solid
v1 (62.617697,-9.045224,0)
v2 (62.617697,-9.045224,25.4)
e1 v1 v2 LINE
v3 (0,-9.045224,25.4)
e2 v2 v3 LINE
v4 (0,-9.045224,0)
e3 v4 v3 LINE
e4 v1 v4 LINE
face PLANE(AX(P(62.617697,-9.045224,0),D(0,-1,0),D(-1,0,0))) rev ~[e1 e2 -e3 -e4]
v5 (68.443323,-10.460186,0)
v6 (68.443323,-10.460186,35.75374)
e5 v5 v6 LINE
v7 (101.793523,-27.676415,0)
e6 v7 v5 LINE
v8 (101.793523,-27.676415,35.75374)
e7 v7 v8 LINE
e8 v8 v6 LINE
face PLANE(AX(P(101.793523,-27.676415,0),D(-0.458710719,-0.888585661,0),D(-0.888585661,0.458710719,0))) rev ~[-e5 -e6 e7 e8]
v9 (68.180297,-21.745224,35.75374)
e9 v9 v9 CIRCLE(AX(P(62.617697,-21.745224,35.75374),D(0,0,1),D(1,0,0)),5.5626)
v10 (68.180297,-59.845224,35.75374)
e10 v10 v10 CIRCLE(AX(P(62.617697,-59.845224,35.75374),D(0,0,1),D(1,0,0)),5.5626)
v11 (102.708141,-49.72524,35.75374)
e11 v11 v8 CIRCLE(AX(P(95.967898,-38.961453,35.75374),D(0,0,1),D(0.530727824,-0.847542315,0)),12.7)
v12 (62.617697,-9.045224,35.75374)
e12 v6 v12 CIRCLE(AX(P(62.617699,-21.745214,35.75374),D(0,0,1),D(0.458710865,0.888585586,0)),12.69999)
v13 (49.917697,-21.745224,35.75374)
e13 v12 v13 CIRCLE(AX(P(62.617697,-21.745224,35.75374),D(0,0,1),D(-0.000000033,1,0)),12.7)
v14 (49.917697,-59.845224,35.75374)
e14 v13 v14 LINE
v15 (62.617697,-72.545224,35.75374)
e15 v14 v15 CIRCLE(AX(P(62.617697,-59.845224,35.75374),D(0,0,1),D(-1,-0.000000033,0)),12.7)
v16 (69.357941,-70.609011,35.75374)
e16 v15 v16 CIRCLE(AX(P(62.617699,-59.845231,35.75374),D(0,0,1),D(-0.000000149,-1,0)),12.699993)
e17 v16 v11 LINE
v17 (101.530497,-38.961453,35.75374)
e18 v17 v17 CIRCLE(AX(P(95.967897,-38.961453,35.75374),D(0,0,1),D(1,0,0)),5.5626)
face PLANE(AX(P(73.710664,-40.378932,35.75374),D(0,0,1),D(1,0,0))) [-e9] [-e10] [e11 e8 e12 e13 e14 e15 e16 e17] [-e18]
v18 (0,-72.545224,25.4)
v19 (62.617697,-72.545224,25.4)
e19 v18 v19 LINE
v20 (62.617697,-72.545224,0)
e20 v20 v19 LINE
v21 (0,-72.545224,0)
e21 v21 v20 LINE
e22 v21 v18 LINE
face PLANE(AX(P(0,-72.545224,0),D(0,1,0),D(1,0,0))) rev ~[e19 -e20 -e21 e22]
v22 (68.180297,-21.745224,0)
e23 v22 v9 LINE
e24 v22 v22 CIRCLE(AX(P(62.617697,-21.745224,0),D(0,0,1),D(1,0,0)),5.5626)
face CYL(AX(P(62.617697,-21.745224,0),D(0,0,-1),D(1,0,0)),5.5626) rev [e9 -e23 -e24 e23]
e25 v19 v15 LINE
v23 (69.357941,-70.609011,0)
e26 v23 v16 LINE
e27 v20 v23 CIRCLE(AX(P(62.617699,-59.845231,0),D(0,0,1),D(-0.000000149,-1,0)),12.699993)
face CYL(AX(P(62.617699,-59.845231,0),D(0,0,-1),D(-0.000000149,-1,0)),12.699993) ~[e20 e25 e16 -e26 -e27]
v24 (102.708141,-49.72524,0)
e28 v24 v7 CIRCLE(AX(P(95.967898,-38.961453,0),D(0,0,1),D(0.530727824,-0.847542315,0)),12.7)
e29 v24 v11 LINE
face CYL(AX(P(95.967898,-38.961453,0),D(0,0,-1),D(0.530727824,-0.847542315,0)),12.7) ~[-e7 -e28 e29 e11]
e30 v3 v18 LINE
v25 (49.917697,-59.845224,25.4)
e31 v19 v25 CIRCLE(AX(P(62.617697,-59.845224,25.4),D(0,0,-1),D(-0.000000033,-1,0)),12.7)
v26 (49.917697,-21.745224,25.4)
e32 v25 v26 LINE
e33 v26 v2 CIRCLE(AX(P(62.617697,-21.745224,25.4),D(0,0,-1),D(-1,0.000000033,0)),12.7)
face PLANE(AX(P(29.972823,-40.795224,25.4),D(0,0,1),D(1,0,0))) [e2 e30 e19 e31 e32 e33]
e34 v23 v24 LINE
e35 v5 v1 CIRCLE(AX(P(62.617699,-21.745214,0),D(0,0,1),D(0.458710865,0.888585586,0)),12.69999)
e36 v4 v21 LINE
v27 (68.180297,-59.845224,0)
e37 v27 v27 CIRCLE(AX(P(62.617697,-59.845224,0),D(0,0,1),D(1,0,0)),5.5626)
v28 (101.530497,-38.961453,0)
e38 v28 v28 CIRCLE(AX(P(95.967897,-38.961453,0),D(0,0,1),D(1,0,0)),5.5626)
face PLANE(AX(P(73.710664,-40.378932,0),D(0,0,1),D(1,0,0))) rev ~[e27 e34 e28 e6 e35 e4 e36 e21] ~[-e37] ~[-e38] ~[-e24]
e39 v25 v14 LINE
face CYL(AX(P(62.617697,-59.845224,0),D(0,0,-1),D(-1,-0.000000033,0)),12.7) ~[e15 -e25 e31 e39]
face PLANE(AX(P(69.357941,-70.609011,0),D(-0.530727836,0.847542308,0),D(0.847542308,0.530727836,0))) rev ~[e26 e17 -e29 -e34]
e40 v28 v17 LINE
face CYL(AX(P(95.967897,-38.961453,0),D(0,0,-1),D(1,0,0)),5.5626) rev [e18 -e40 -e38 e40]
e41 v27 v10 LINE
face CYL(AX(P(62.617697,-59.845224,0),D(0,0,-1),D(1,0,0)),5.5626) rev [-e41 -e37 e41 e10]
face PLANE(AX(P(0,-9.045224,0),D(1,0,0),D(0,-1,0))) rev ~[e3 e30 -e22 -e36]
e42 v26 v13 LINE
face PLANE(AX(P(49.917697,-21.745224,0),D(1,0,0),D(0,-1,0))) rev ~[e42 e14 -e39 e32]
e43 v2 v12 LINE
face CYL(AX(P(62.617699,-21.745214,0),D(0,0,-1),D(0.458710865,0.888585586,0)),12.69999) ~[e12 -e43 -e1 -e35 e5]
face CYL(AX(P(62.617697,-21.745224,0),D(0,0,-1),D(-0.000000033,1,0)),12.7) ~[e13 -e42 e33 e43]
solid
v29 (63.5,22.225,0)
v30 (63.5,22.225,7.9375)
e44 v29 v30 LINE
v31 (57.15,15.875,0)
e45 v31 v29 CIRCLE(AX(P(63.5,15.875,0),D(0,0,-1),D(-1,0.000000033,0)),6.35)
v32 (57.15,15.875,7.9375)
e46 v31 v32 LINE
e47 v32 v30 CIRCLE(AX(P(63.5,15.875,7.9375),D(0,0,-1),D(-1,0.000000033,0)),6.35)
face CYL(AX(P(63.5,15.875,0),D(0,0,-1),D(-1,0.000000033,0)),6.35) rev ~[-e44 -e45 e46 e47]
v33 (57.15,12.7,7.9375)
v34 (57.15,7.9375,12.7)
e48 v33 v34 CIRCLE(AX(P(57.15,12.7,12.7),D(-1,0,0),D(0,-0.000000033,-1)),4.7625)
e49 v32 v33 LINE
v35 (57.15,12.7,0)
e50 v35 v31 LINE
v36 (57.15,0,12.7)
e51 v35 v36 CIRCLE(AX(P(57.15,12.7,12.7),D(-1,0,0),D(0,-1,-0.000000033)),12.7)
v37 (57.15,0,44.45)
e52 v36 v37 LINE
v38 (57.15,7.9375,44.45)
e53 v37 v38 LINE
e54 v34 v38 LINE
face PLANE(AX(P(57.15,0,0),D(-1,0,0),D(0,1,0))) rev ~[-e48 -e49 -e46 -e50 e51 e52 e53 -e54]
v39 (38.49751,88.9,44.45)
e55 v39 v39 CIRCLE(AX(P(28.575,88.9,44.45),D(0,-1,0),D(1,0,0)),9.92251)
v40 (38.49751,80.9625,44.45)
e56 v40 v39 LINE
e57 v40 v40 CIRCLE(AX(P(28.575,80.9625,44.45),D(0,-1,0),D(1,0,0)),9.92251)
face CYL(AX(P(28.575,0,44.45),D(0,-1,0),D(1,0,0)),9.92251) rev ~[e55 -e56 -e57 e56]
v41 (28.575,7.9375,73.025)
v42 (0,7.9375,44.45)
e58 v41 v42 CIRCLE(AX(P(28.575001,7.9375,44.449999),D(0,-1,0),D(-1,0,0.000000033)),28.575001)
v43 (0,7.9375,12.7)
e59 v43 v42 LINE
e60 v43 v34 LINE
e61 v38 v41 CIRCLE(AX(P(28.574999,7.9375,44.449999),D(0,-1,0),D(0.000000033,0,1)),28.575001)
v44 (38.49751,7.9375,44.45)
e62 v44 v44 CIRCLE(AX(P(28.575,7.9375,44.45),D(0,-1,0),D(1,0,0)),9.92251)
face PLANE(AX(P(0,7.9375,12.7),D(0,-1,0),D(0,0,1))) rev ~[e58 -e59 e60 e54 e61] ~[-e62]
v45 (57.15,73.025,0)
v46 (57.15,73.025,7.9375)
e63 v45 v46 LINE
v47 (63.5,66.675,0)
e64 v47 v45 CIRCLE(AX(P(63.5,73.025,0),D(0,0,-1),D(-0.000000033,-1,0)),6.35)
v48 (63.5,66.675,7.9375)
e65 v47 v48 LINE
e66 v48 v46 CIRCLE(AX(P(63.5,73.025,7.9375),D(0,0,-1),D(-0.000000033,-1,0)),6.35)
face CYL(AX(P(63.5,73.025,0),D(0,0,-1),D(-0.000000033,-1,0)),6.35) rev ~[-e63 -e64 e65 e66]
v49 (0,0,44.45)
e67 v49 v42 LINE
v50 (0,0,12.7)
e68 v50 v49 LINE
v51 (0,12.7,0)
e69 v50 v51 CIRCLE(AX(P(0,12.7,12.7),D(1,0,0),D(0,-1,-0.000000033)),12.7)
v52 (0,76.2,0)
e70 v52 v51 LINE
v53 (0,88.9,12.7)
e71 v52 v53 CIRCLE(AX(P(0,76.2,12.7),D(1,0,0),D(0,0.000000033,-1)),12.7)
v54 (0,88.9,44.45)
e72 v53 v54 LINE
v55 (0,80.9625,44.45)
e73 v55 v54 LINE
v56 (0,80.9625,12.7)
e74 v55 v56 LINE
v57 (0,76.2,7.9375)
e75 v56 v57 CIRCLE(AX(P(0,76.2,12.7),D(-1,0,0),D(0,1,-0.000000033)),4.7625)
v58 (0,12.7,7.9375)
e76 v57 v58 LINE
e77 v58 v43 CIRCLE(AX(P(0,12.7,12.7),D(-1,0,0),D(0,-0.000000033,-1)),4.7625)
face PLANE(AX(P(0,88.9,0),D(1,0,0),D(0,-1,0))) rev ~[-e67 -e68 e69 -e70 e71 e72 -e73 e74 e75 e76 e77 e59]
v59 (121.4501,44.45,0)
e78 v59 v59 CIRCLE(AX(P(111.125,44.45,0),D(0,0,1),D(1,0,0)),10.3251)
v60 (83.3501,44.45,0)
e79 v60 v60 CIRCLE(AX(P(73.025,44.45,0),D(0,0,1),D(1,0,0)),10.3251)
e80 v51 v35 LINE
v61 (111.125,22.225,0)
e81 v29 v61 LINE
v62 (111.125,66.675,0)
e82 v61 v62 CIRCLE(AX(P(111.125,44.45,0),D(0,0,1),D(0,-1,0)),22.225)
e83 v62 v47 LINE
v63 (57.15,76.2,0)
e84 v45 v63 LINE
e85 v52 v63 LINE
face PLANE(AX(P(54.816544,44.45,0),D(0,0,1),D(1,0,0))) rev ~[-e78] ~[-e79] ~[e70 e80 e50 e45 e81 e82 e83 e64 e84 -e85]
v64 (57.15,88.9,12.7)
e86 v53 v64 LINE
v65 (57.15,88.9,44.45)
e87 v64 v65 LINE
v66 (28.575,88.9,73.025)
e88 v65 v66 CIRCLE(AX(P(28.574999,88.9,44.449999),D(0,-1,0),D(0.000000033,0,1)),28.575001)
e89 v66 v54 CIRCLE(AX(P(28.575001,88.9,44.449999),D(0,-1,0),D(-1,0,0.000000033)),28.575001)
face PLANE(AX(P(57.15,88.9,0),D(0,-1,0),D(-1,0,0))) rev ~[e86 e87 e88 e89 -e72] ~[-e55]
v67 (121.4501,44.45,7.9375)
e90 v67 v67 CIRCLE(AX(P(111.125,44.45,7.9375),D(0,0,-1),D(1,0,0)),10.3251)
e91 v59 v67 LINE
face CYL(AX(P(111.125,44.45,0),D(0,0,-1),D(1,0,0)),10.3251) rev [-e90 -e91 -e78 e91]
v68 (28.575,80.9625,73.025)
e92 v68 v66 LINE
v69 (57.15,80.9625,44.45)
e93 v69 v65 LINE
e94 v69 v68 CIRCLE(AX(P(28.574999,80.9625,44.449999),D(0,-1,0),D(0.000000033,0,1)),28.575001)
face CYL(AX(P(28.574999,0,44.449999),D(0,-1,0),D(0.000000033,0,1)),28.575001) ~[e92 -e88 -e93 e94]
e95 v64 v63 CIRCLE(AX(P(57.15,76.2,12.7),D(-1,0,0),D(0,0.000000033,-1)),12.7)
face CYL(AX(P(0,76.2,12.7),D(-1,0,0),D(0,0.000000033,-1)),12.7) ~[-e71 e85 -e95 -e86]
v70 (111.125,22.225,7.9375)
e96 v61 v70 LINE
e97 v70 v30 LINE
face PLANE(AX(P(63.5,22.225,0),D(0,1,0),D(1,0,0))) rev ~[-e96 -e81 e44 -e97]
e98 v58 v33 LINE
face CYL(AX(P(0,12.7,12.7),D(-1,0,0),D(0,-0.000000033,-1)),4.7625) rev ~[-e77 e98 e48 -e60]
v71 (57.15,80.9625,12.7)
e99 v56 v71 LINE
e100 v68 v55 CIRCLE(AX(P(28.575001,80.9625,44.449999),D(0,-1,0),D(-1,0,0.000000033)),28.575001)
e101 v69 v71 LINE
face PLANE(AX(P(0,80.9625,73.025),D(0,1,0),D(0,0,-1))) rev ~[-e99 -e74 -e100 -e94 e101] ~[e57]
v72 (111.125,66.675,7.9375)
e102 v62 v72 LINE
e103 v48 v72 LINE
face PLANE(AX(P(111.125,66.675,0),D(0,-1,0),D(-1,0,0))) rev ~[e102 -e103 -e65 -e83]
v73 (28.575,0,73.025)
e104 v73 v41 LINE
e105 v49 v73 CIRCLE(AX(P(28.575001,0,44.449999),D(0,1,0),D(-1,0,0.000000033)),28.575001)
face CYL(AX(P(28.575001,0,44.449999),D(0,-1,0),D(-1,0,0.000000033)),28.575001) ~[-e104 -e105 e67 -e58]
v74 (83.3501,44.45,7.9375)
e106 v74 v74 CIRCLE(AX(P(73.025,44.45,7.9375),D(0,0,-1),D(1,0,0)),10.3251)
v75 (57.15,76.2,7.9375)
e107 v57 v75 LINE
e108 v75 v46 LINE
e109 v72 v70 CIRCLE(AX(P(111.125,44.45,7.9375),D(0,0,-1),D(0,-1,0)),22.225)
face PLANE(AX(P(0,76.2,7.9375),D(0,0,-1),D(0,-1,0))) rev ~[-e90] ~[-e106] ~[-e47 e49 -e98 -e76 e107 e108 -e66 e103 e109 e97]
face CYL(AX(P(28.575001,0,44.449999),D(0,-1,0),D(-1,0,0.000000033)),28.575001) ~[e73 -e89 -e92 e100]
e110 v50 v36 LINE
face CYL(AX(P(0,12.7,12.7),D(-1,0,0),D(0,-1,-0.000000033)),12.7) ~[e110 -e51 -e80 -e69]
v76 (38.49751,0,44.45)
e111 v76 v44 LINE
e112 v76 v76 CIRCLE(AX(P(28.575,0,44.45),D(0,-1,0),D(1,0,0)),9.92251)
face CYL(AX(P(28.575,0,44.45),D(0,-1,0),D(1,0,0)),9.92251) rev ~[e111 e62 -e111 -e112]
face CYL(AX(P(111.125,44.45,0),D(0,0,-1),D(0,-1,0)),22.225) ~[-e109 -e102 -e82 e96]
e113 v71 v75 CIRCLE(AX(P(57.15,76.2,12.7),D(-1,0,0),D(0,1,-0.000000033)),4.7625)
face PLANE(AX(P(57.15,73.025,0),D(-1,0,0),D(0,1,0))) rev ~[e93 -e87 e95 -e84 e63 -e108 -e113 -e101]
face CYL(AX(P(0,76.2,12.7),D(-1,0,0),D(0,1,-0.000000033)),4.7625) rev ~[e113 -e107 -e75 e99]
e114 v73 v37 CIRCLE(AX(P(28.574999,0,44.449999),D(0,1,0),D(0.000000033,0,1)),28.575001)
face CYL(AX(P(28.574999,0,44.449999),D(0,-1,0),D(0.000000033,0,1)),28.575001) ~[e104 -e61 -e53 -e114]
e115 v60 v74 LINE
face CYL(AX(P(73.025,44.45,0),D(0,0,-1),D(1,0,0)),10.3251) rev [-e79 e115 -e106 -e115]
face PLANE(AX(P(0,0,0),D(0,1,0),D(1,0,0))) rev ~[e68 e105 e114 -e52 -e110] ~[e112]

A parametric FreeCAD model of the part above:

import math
import FreeCAD as App
import Part
import Sketcher
from FreeCAD import Vector
Q = App.Units.Quantity

doc = App.newDocument("Part")
body = doc.addObject("PartDesign::Body", "Body")

sketch1 = body.newObject("Sketcher::SketchObject", "Sketch")
sketch1.AttachmentSupport = (doc.getObject("XY_Plane"), [""])
sketch1.MapMode = "FlatFace"
sketch1.addGeometry([
    Part.LineSegment(Vector(0, 89, 0), Vector(0, 0, 0)),
    Part.LineSegment(Vector(0, 0, 0), Vector(57, 0, 0)),
    Part.LineSegment(Vector(57, 0, 0), Vector(57, 16, 0)),
    Part.ArcOfCircle(Part.Circle(Vector(64, 16, 0), Vector(0, 0, 1), 6), math.radians(90), math.radians(180)),
    Part.LineSegment(Vector(64, 22, 0), Vector(111, 22, 0)),
    Part.ArcOfCircle(Part.Circle(Vector(111, 44, 0), Vector(0, 0, 1), 22), math.radians(-90), math.radians(90)),
    Part.LineSegment(Vector(111, 67, 0), Vector(64, 67, 0)),
    Part.ArcOfCircle(Part.Circle(Vector(64, 73, 0), Vector(0, 0, 1), 6), math.radians(-180), math.radians(-90)),
    Part.LineSegment(Vector(57, 73, 0), Vector(57, 89, 0)),
    Part.LineSegment(Vector(57, 89, 0), Vector(0, 89, 0)),
    Part.Circle(Vector(73, 44, 0), Vector(0, 0, 1), 10),
    Part.Circle(Vector(111, 44, 0), Vector(0, 0, 1), 10),
], False)
sketch1.addConstraint([
    Sketcher.Constraint("Coincident", 0, 2, 1, 1),
    Sketcher.Constraint("Coincident", 1, 2, 2, 1),
    Sketcher.Constraint("Tangent", 2, 2, 3, 2),
    Sketcher.Constraint("Tangent", 3, 1, 4, 1),
    Sketcher.Constraint("Tangent", 4, 2, 5, 1),
    Sketcher.Constraint("Tangent", 5, 2, 6, 1),
    Sketcher.Constraint("Tangent", 6, 2, 7, 2),
    Sketcher.Constraint("Tangent", 7, 1, 8, 1),
    Sketcher.Constraint("Coincident", 8, 2, 9, 1),
    Sketcher.Constraint("Coincident", 9, 2, 0, 1),
    Sketcher.Constraint("Vertical", 0),
    Sketcher.Constraint("Horizontal", 1),
    Sketcher.Constraint("Vertical", 2),
    Sketcher.Constraint("Horizontal", 4),
    Sketcher.Constraint("Horizontal", 6),
    Sketcher.Constraint("Vertical", 8),
    Sketcher.Constraint("Horizontal", 9),
    Sketcher.Constraint("Coincident", 0, 2, -1, 1),
    Sketcher.Constraint("Coincident", 11, 3, 5, 3),
    Sketcher.Constraint("Equal", 3, 7),
    Sketcher.Constraint("Equal", 10, 11),
    Sketcher.Constraint("Horizontal", 5, 3, 10, 3),
    Sketcher.Constraint("Vertical", 3, 3, 7, 3),
    Sketcher.Constraint("Equal", 2, 8),
    Sketcher.Constraint("Radius", 3, Q("0.25 in")),
    Sketcher.Constraint("Diameter", 10, Q("0.813 in")),
    Sketcher.Constraint("DistanceY", 0, 2, 0, 1, Q("3.5 in")),
    Sketcher.Constraint("Radius", 5, Q("0.875 in")),
    Sketcher.Constraint("DistanceX", 1, 1, 1, 2, Q("2.25 in")),
    Sketcher.Constraint("DistanceX", 10, 3, 5, 3, Q("1.5 in")),
    Sketcher.Constraint("DistanceX", 4, 1, 4, 2, Q("1.875 in")),
])
pad1 = body.newObject("PartDesign::Pad", "Pad")
pad1.Profile = sketch1
pad1.Length = Q("2.875 in")

sketch2 = body.newObject("Sketcher::SketchObject", "Sketch001")
sketch2.AttachmentSupport = (doc.getObject("YZ_Plane"), [""])
sketch2.MapMode = "FlatFace"
sketch2.addGeometry([
    Part.LineSegment(Vector(7.9, 73, 0), Vector(81, 73, 0)),
    Part.LineSegment(Vector(81, 73, 0), Vector(81, 12.7, 0)),
    Part.ArcOfCircle(Part.Circle(Vector(76.2, 12.7, 0), Vector(0, 0, 1), 4.8), math.radians(-90), math.radians(0)),
    Part.LineSegment(Vector(76.2, 7.9, 0), Vector(12.7, 7.9, 0)),
    Part.ArcOfCircle(Part.Circle(Vector(12.7, 12.7, 0), Vector(0, 0, 1), 4.8), math.radians(-180), math.radians(-90)),
    Part.LineSegment(Vector(7.9, 12.7, 0), Vector(7.9, 73, 0)),
    Part.ArcOfCircle(Part.Circle(Vector(76.2, 12.7, 0), Vector(0, 0, 1), 12.7), math.radians(-90), math.radians(0)),
    Part.LineSegment(Vector(88.9, 12.7, 0), Vector(88.9, 0, 0)),
    Part.LineSegment(Vector(88.9, 0, 0), Vector(76.2, 0, 0)),
    Part.ArcOfCircle(Part.Circle(Vector(12.7, 12.7, 0), Vector(0, 0, 1), 12.7), math.radians(-180), math.radians(-90)),
    Part.LineSegment(Vector(12.7, 0, 0), Vector(0, 0, 0)),
    Part.LineSegment(Vector(0, 0, 0), Vector(0, 12.7, 0)),
], False)
sketch2.addConstraint([
    Sketcher.Constraint("Coincident", 0, 2, 1, 1),
    Sketcher.Constraint("Tangent", 1, 2, 2, 2),
    Sketcher.Constraint("Tangent", 2, 1, 3, 1),
    Sketcher.Constraint("Tangent", 3, 2, 4, 2),
    Sketcher.Constraint("Tangent", 4, 1, 5, 1),
    Sketcher.Constraint("Coincident", 5, 2, 0, 1),
    Sketcher.Constraint("Tangent", 6, 2, 7, 1),
    Sketcher.Constraint("Coincident", 7, 2, 8, 1),
    Sketcher.Constraint("Tangent", 8, 2, 6, 1),
    Sketcher.Constraint("Tangent", 9, 2, 10, 1),
    Sketcher.Constraint("Coincident", 10, 2, 11, 1),
    Sketcher.Constraint("Tangent", 11, 2, 9, 1),
    Sketcher.Constraint("Horizontal", 0),
    Sketcher.Constraint("Vertical", 1),
    Sketcher.Constraint("Horizontal", 3),
    Sketcher.Constraint("Vertical", 5),
    Sketcher.Constraint("Vertical", 7),
    Sketcher.Constraint("Horizontal", 8),
    Sketcher.Constraint("Horizontal", 10),
    Sketcher.Constraint("Vertical", 11),
    Sketcher.Constraint("Coincident", 10, 2, -1, 1),
    Sketcher.Constraint("Coincident", 6, 3, 2, 3),
    Sketcher.Constraint("Coincident", 9, 3, 4, 3),
    Sketcher.Constraint("Equal", 2, 4),
    Sketcher.Constraint("Equal", 6, 9),
    Sketcher.Constraint("Radius", 6, Q("0.5 in")),
    Sketcher.Constraint("DistanceX", 3, 2, 3, 1, Q("2.5 in")),
    Sketcher.Constraint("Radius", 2, Q("0.1875 in")),
    Sketcher.Constraint("DistanceY", 1, 2, 1, 1, Q("2.375 in")),
])
pocket1 = body.newObject("PartDesign::Pocket", "Pocket")
pocket1.Profile = sketch2
pocket1.Type = "ThroughAll"
pocket1.Reversed = True

sketch3 = body.newObject("Sketcher::SketchObject", "Sketch002")
sketch3.AttachmentSupport = (doc.getObject("XZ_Plane"), [""])
sketch3.MapMode = "FlatFace"
sketch3.addGeometry([
    Part.Circle(Vector(29, 44, 0), Vector(0, 0, 1), 10),
    Part.LineSegment(Vector(57, 73, 0), Vector(29, 73, 0)),
    Part.ArcOfCircle(Part.Circle(Vector(29, 44, 0), Vector(0, 0, 1), 29), math.radians(0), math.radians(90)),
    Part.LineSegment(Vector(57, 44, 0), Vector(57, 73, 0)),
    Part.LineSegment(Vector(0, 73, 0), Vector(0, 44, 0)),
    Part.ArcOfCircle(Part.Circle(Vector(29, 44, 0), Vector(0, 0, 1), 29), math.radians(90), math.radians(180)),
    Part.LineSegment(Vector(29, 73, 0), Vector(0, 73, 0)),
], False)
sketch3.addConstraint([
    Sketcher.Constraint("Tangent", 1, 2, 2, 2),
    Sketcher.Constraint("Tangent", 2, 1, 3, 1),
    Sketcher.Constraint("Coincident", 3, 2, 1, 1),
    Sketcher.Constraint("Tangent", 4, 2, 5, 2),
    Sketcher.Constraint("Tangent", 5, 1, 6, 1),
    Sketcher.Constraint("Coincident", 6, 2, 4, 1),
    Sketcher.Constraint("Horizontal", 1),
    Sketcher.Constraint("Vertical", 3),
    Sketcher.Constraint("Vertical", 4),
    Sketcher.Constraint("Horizontal", 6),
    Sketcher.Constraint("Coincident", 2, 3, 0, 3),
    Sketcher.Constraint("Coincident", 5, 3, 0, 3),
    Sketcher.Constraint("Equal", 2, 5),
    Sketcher.Constraint("PointOnObject", 4, 2, -2),
    Sketcher.Constraint("Radius", 2, Q("1.125 in")),
    Sketcher.Constraint("Diameter", 0, Q("0.7813 in")),
    Sketcher.Constraint("DistanceY", -1, 1, 0, 3, Q("1.75 in")),
])
pocket2 = body.newObject("PartDesign::Pocket", "Pocket001")
pocket2.Profile = sketch3
pocket2.Type = "ThroughAll"
body2 = doc.addObject("PartDesign::Body", "Body001")

sketch4 = body2.newObject("Sketcher::SketchObject", "Sketch003")
sketch4.AttachmentSupport = (doc.getObject("XY_Plane001"), [""])
sketch4.MapMode = "FlatFace"
sketch4.addGeometry([
    Part.LineSegment(Vector(63, -9, 0), Vector(0, -9, 0)),
    Part.LineSegment(Vector(0, -9, 0), Vector(0, -73, 0)),
    Part.LineSegment(Vector(0, -73, 0), Vector(63, -73, 0)),
    Part.ArcOfCircle(Part.Circle(Vector(63, -60, 0), Vector(0, 0, 1), 13), math.radians(-180), math.radians(-90)),
    Part.LineSegment(Vector(50, -60, 0), Vector(50, -22, 0)),
    Part.ArcOfCircle(Part.Circle(Vector(63, -22, 0), Vector(0, 0, 1), 13), math.radians(90), math.radians(180)),
], False)
sketch4.addConstraint([
    Sketcher.Constraint("Coincident", 0, 2, 1, 1),
    Sketcher.Constraint("Coincident", 1, 2, 2, 1),
    Sketcher.Constraint("Tangent", 2, 2, 3, 2),
    Sketcher.Constraint("Tangent", 3, 1, 4, 1),
    Sketcher.Constraint("Tangent", 4, 2, 5, 2),
    Sketcher.Constraint("Tangent", 5, 1, 0, 1),
    Sketcher.Constraint("Horizontal", 0),
    Sketcher.Constraint("Vertical", 1),
    Sketcher.Constraint("Horizontal", 2),
    Sketcher.Constraint("Vertical", 4),
    Sketcher.Constraint("Equal", 3, 5),
    Sketcher.Constraint("PointOnObject", 0, 2, -2),
    Sketcher.Constraint("Radius", 3, Q("0.5 in")),
    Sketcher.Constraint("DistanceY", 1, 2, 1, 1, Q("2.5 in")),
    Sketcher.Constraint("DistanceX", 0, 2, 0, 1, Q("62.617697 mm")),
    Sketcher.Constraint("DistanceY", 3, 3, -1, 1, Q("59.845224 mm")),
])
pad2 = body2.newObject("PartDesign::Pad", "Pad001")
pad2.Profile = sketch4
pad2.Length = Q("1 in")

sketch5 = body2.newObject("Sketcher::SketchObject", "Sketch004")
sketch5.AttachmentSupport = (doc.getObject("XY_Plane001"), [""])
sketch5.MapMode = "FlatFace"
sketch5.addGeometry([
    Part.ArcOfCircle(Part.Circle(Vector(63, -22, 0), Vector(0, 0, 1), 13), math.radians(63), math.radians(90)),
    Part.ArcOfCircle(Part.Circle(Vector(63, -22, 0), Vector(0, 0, 1), 13), math.radians(90), math.radians(180)),
    Part.LineSegment(Vector(50, -22, 0), Vector(50, -60, 0)),
    Part.ArcOfCircle(Part.Circle(Vector(63, -60, 0), Vector(0, 0, 1), 13), math.radians(-180), math.radians(-90)),
    Part.ArcOfCircle(Part.Circle(Vector(63, -60, 0), Vector(0, 0, 1), 13), math.radians(-90), math.radians(-58)),
    Part.LineSegment(Vector(69, -71, 0), Vector(103, -50, 0)),
    Part.ArcOfCircle(Part.Circle(Vector(96, -39, 0), Vector(0, 0, 1), 13), math.radians(-58), math.radians(63)),
    Part.LineSegment(Vector(102, -28, 0), Vector(68, -10, 0)),
    Part.Circle(Vector(63, -60, 0), Vector(0, 0, 1), 6),
    Part.Circle(Vector(63, -22, 0), Vector(0, 0, 1), 6),
    Part.Circle(Vector(96, -39, 0), Vector(0, 0, 1), 6),
], False)
sketch5.addConstraint([
    Sketcher.Constraint("Tangent", 0, 2, 1, 1),
    Sketcher.Constraint("Tangent", 1, 2, 2, 1),
    Sketcher.Constraint("Tangent", 2, 2, 3, 1),
    Sketcher.Constraint("Tangent", 3, 2, 4, 1),
    Sketcher.Constraint("Tangent", 4, 2, 5, 1),
    Sketcher.Constraint("Tangent", 5, 2, 6, 1),
    Sketcher.Constraint("Tangent", 6, 2, 7, 1),
    Sketcher.Constraint("Tangent", 7, 2, 0, 1),
    Sketcher.Constraint("Vertical", 2),
    Sketcher.Constraint("Coincident", 8, 3, 3, 3),
    Sketcher.Constraint("Coincident", 9, 3, 0, 3),
    Sketcher.Constraint("Coincident", 10, 3, 6, 3),
    Sketcher.Constraint("Equal", 1, 3),
    Sketcher.Constraint("Equal", 3, 6),
    Sketcher.Constraint("Equal", 8, 9),
    Sketcher.Constraint("Equal", 9, 10),
    Sketcher.Constraint("Horizontal", 9, 3, 1, 2),
    Sketcher.Constraint("Vertical", 9, 3, 0, 2),
    Sketcher.Constraint("Vertical", 0, 2, 3, 2),
    Sketcher.Constraint("Radius", 1, Q("0.5 in")),
    Sketcher.Constraint("Diameter", 8, Q("0.438 in")),
    Sketcher.Constraint("DistanceY", 2, 2, 2, 1, Q("1.5 in")),
    Sketcher.Constraint("DistanceX", 1, 3, 6, 3, Q("1.313 in")),
    Sketcher.Constraint("DistanceX", 4, 2, 5, 2, Q("1.313 in")),
    Sketcher.Constraint("DistanceX", -1, 1, 0, 3, Q("62.617699 mm")),
    Sketcher.Constraint("DistanceY", 6, 2, 0, 3, Q("5.931201 mm")),
    Sketcher.Constraint("DistanceY", 4, 3, -1, 1, Q("59.845231 mm")),
])
pad3 = body2.newObject("PartDesign::Pad", "Pad002")
pad3.Profile = sketch5
pad3.Length = 35.75374

doc.recompute()
